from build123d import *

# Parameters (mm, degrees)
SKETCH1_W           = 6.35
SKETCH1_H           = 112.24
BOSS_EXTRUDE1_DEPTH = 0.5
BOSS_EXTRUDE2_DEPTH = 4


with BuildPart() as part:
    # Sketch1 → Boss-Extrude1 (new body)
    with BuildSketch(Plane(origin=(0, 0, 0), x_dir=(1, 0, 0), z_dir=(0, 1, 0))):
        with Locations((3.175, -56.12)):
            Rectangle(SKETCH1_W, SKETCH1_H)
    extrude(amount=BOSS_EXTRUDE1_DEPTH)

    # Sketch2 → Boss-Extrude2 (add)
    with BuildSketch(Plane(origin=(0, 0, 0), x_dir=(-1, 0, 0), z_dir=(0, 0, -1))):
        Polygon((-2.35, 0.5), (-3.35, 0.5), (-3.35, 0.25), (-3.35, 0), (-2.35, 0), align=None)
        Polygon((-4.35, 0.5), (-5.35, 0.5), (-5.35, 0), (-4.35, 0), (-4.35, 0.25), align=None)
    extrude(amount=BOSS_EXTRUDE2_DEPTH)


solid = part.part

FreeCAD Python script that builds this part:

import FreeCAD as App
import Part
import Sketcher

V = App.Vector


def add_polygon(sketch, points):
    """Adds a closed chain of lines whose ends are joined by coincident constraints."""
    first, n = sketch.GeometryCount, len(points)
    for a, b in zip(points, points[1:] + points[:1]):
        sketch.addGeometry(Part.LineSegment(App.Vector(*a, 0), App.Vector(*b, 0)), False)
    for i in range(n):
        sketch.addConstraint(Sketcher.Constraint("Coincident", first + i, 2, first + (i + 1) % n, 1))

doc = App.newDocument("Part")
body = doc.addObject("PartDesign::Body", "Body")

# Sketch on XZ plane
sketch1 = doc.addObject("Sketcher::SketchObject", "Sketch")
body.addObject(sketch1)
sketch1.AttachmentSupport = (doc.XZ_Plane, [""])
sketch1.MapMode = "FlatFace"
add_polygon(sketch1, [(0, 0), (0, 112), (6, 112), (6, 0)])  # lines 0-3
sketch1.addConstraint([
    Sketcher.Constraint("Vertical", 0),
    Sketcher.Constraint("Horizontal", 1),
    Sketcher.Constraint("Vertical", 2),
    Sketcher.Constraint("Horizontal", 3),
    Sketcher.Constraint("Coincident", 3, 2, -1, 1),
    Sketcher.Constraint("DistanceX", 1, 1, 1, 2, 6.35),
    Sketcher.Constraint("DistanceY", 0, 1, 0, 2, 112.24),
])
pad1 = doc.addObject("PartDesign::Pad", "Pad")
body.addObject(pad1)
pad1.Profile = sketch1
pad1.Length = 0.5
pad1.Reversed = True

# Sketch on XY plane
sketch2 = doc.addObject("Sketcher::SketchObject", "Sketch001")
body.addObject(sketch2)
sketch2.AttachmentSupport = (doc.XY_Plane, [""])
sketch2.MapMode = "FlatFace"
add_polygon(sketch2, [(2.4, 0.5), (3.4, 0.5), (3.4, 0), (2.4, 0)])  # lines 0-3
add_polygon(sketch2, [(4.3, 0.5), (5.3, 0.5), (5.3, 0), (4.3, 0)])  # lines 4-7
sketch2.addConstraint([
    Sketcher.Constraint("Horizontal", 0),
    Sketcher.Constraint("Vertical", 1),
    Sketcher.Constraint("Horizontal", 2),
    Sketcher.Constraint("Vertical", 3),
    Sketcher.Constraint("Horizontal", 4),
    Sketcher.Constraint("Vertical", 5),
    Sketcher.Constraint("Horizontal", 6),
    Sketcher.Constraint("Vertical", 7),
    Sketcher.Constraint("PointOnObject", 1, 2, -1),
    Sketcher.Constraint("PointOnObject", 5, 2, -1),
    Sketcher.Constraint("Horizontal", 3, 2, 4, 2),
    Sketcher.Constraint("Equal", 2, 4),
    Sketcher.Constraint("DistanceX", 0, 1, 0, 2, 1.0),
    Sketcher.Constraint("DistanceY", 1, 2, 1, 1, 0.5),
    Sketcher.Constraint("DistanceX", 0, 2, 4, 2, 2.0),
    Sketcher.Constraint("DistanceX", -1, 1, 0, 2, 3.35),
])
pad2 = doc.addObject("PartDesign::Pad", "Pad001")
body.addObject(pad2)
pad2.Profile = sketch2
pad2.Length = 4
pad2.Reversed = True

doc.recompute()
